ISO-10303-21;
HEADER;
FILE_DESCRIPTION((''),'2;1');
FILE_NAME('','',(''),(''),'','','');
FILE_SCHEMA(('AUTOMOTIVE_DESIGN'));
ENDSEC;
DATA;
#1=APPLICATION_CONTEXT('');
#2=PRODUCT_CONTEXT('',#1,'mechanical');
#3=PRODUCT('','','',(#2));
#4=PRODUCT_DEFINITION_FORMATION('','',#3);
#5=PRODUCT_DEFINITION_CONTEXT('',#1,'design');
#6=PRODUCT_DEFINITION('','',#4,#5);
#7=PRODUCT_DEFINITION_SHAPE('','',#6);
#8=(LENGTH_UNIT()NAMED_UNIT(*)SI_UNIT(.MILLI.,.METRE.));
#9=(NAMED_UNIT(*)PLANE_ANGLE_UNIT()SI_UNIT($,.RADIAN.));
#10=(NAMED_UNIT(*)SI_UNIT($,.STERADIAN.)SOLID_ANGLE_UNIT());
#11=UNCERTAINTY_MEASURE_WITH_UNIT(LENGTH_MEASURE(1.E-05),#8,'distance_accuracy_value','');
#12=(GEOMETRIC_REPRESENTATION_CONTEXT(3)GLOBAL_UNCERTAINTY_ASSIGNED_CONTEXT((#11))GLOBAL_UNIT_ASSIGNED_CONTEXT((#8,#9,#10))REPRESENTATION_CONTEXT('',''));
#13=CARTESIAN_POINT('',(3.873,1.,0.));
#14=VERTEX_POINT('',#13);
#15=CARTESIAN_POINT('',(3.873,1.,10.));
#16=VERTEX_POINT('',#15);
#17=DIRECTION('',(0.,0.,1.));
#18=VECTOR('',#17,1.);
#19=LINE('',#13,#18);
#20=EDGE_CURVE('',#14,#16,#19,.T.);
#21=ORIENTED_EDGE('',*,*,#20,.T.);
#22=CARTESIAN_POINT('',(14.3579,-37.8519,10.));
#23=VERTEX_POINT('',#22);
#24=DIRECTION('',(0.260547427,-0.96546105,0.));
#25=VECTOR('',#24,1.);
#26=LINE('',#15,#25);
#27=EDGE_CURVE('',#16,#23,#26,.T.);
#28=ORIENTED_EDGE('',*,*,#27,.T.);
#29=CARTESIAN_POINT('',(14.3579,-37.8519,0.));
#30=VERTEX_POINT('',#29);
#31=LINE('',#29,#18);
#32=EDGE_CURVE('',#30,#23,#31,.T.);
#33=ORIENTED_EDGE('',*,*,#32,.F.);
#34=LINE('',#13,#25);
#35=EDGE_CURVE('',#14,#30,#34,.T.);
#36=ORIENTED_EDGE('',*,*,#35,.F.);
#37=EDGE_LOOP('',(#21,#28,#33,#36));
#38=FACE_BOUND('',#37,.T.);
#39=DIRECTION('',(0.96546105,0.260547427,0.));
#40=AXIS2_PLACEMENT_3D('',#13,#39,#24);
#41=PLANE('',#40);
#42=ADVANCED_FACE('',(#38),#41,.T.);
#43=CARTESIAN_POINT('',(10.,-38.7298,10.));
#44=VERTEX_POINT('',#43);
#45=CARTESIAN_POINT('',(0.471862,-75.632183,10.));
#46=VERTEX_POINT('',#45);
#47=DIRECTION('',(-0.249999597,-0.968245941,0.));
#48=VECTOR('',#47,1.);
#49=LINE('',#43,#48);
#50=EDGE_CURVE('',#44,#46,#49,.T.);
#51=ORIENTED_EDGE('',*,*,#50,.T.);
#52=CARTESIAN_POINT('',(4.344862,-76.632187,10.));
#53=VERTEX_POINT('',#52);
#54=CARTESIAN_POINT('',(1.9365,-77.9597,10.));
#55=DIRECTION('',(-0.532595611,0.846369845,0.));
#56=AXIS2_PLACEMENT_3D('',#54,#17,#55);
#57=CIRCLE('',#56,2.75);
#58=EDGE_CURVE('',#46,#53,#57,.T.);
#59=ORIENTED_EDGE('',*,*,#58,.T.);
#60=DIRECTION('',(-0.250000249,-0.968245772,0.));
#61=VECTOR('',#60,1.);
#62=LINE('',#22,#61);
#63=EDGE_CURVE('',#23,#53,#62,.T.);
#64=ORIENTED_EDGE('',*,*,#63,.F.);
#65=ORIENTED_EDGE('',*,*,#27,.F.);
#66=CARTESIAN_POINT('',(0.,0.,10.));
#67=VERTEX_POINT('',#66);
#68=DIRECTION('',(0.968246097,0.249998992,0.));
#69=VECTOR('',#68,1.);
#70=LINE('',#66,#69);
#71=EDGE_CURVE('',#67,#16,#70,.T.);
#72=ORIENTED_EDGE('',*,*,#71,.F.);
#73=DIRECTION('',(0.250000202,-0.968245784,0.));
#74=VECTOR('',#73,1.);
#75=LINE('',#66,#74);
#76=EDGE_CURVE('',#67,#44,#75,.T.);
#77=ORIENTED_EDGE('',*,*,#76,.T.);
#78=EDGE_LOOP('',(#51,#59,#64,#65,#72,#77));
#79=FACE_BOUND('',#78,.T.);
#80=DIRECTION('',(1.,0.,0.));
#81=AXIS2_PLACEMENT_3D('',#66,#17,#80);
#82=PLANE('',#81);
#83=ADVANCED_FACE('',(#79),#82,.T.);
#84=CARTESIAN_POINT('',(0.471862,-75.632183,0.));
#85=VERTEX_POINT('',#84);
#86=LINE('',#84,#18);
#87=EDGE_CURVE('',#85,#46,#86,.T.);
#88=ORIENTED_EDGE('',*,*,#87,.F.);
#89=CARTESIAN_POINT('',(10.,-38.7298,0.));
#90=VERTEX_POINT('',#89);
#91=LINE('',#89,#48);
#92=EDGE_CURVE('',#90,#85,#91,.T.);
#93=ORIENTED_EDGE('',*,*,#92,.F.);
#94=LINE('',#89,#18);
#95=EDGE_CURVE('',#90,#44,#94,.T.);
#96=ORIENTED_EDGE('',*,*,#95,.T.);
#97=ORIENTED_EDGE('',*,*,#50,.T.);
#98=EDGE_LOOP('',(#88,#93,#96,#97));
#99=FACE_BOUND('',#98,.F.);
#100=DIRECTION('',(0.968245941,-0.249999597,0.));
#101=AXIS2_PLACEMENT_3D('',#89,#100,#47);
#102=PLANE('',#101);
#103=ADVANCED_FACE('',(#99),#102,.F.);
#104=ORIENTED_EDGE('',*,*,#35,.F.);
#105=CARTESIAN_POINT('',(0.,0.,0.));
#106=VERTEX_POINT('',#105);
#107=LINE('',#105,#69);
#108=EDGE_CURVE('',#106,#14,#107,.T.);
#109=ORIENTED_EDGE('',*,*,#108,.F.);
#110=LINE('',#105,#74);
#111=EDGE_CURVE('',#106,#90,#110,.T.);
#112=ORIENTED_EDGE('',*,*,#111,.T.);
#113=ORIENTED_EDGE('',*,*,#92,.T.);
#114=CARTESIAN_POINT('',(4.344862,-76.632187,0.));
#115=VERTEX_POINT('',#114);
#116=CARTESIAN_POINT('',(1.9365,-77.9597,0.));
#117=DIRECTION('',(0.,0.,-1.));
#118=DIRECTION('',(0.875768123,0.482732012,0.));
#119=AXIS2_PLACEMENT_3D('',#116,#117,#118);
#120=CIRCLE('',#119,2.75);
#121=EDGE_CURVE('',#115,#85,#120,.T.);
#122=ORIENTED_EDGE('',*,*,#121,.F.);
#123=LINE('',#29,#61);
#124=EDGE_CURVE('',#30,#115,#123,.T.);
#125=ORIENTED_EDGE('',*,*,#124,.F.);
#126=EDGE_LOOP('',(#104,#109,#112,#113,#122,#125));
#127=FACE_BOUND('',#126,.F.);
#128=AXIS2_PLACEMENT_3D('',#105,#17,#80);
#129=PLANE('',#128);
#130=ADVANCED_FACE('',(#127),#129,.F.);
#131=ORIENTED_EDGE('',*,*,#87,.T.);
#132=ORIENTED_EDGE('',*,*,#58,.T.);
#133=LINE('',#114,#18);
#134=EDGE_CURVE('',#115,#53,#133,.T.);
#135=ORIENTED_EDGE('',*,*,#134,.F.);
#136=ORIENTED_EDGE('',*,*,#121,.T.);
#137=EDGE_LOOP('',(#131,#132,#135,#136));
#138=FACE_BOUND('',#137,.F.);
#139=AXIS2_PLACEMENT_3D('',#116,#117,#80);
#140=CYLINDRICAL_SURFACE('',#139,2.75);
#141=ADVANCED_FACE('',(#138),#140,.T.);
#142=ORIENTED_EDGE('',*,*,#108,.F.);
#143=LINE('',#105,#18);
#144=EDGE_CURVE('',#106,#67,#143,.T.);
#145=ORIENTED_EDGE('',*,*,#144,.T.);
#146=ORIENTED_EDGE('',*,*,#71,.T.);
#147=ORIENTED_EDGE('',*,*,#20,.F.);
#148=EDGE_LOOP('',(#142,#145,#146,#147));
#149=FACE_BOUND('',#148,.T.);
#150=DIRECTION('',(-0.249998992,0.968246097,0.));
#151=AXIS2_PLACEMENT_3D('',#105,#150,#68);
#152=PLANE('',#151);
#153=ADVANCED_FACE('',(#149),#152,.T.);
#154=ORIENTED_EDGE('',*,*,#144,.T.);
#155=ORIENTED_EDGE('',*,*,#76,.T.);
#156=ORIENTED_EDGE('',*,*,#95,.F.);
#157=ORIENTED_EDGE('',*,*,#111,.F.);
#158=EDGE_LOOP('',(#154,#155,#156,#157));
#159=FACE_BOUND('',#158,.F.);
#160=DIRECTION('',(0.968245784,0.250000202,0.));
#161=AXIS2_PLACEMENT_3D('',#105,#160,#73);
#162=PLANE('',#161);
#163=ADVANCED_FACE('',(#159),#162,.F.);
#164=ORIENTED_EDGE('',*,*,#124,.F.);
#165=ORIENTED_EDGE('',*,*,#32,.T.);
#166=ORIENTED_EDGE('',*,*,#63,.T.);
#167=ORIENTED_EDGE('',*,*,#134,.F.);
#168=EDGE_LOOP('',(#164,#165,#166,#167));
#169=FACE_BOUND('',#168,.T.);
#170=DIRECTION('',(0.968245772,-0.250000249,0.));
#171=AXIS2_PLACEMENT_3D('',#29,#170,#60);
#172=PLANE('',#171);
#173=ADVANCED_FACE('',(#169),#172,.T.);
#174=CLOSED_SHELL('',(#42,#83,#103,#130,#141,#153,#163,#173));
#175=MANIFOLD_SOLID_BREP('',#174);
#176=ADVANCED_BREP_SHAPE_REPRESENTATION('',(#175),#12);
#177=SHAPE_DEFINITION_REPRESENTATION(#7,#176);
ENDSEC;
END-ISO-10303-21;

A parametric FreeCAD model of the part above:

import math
import FreeCAD as App
import Part
import Sketcher

V = App.Vector
Q = App.Units.Quantity

doc = App.newDocument("Part")
params = doc.addObject("Spreadsheet::Sheet", "Params")
for row, (alias, value) in enumerate([
    ("sketch1_radius", "2.75 mm"),
    ("sketch1_length", "4 mm"),
    ("sketch1_length2", "40 mm"),
    ("pad1_length", "10 mm"),
], start=1):
    params.set(f"A{row}", alias)
    params.set(f"B{row}", "=" + value)
    params.setAlias(f"B{row}", alias)

body = doc.addObject("PartDesign::Body", "Body")

sketch1 = body.newObject("Sketcher::SketchObject", "Sketch")
sketch1.AttachmentSupport = (doc.getObject("XY_Plane"), [""])
sketch1.MapMode = "FlatFace"
sketch1.addGeometry([
    Part.LineSegment(V(3.873, 1, 0), V(0, 0, 0)),
    Part.LineSegment(V(0, 0, 0), V(10, -38.7298, 0)),
    Part.LineSegment(V(10, -38.7298, 0), V(0.471862, -75.632183, 0)),
    Part.ArcOfCircle(Part.Circle(V(1.9365, -77.9597, 0), V(0, 0, 1), 2.75), math.radians(122.180998), math.radians(388.863987)),
    Part.LineSegment(V(4.344862, -76.632187, 0), V(14.3579, -37.8519, 0)),
    Part.LineSegment(V(14.3579, -37.8519, 0), V(3.873, 1, 0)),
], False)
sketch1.addConstraint([
    Sketcher.Constraint("Coincident", 0, 2, 1, 1),
    Sketcher.Constraint("Coincident", 1, 2, 2, 1),
    Sketcher.Constraint("Coincident", 2, 2, 3, 1),
    Sketcher.Constraint("Coincident", 3, 2, 4, 1),
    Sketcher.Constraint("Coincident", 4, 2, 5, 1),
    Sketcher.Constraint("Coincident", 5, 2, 0, 1),
    Sketcher.Constraint("Coincident", 0, 2, -1, 1),
    Sketcher.Constraint("Perpendicular", 0, 1),
    Sketcher.Constraint("Parallel", 2, 4),
    Sketcher.Constraint("Radius", 3, Q("2.75 mm")),
    Sketcher.Constraint("Distance", 0, Q("4 mm")),
    Sketcher.Constraint("Distance", 1, Q("40 mm")),
    Sketcher.Constraint("DistanceX", -1, 1, 1, 2, Q("10 mm")),
    Sketcher.Constraint("DistanceY", 3, 2, 2, 2, Q("1 mm")),
    Sketcher.Constraint("DistanceY", 3, 3, 1, 2, Q("39.23 mm")),
    Sketcher.Constraint("Distance", 4, Q("40.052 mm")),
    Sketcher.Constraint("DistanceX", -1, 1, 4, 2, Q("14.358 mm")),
    Sketcher.Constraint("DistanceY", 4, 2, -1, 1, Q("37.852 mm")),
])
sketch1.setExpression("Constraints[9]", "Params.sketch1_radius")
sketch1.setExpression("Constraints[10]", "Params.sketch1_length")
sketch1.setExpression("Constraints[11]", "Params.sketch1_length2")
pad1 = body.newObject("PartDesign::Pad", "Pad")
pad1.Profile = sketch1
pad1.setExpression("Length", "Params.pad1_length")

doc.recompute()
